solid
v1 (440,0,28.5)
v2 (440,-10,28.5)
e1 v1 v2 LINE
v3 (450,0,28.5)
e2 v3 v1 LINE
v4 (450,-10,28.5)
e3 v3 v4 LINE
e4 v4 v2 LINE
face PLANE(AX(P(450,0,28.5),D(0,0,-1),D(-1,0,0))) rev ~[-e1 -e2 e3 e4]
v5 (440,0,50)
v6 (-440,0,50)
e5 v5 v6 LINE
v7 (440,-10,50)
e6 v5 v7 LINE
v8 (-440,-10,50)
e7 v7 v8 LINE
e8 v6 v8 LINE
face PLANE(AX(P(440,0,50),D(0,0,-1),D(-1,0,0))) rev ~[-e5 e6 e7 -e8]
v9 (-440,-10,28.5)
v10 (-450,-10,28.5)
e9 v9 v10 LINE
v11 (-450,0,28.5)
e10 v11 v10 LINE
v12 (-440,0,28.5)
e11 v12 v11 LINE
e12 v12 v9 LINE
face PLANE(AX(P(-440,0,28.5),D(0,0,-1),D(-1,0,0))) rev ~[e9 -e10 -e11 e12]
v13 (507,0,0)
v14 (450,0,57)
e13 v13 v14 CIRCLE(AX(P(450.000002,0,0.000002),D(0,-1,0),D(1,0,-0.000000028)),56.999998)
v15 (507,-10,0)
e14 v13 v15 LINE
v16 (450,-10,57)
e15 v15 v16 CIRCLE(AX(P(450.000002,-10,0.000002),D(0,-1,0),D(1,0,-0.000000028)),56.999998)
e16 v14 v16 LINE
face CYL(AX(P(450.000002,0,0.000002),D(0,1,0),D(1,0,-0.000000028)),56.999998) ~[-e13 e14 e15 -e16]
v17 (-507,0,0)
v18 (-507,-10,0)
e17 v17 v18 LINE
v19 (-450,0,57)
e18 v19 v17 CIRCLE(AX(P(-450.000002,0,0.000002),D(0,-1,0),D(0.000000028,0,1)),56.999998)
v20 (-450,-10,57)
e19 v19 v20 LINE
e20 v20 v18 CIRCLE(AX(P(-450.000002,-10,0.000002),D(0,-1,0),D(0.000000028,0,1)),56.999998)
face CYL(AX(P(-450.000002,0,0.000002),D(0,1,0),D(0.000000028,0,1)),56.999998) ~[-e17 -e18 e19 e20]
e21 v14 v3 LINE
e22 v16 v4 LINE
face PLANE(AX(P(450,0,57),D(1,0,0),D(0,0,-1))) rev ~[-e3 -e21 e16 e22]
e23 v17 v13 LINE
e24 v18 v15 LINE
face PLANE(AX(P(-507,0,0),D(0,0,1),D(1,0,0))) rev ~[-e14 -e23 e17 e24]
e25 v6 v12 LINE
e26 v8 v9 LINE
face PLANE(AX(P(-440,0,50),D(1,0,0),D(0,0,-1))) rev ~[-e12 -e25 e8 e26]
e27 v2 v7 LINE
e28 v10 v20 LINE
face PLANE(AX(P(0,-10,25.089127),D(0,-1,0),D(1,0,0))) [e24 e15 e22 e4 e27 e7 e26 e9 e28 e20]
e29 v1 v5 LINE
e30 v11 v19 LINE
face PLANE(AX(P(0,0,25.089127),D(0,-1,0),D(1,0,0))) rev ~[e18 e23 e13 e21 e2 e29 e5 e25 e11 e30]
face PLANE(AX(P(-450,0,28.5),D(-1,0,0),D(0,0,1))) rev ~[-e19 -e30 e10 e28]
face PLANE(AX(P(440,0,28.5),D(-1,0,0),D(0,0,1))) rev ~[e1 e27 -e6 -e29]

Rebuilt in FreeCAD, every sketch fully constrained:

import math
import FreeCAD as App
import Part
import Sketcher

doc = App.newDocument("Part")
params = doc.addObject("Spreadsheet::Sheet", "Params")
for row, (alias, value) in enumerate([
    ("sketch1_radius", "56.999998 mm"),
    ("sketch1_width", "1014 mm"),
    ("sketch1_width2", "10 mm"),
    ("sketch1_height", "28.5 mm"),
    ("sketch1_height2", "21.5 mm"),
    ("pad1_length", "10 mm"),
], start=1):
    params.set(f"A{row}", alias)
    params.set(f"B{row}", "=" + value)
    params.setAlias(f"B{row}", alias)

body = doc.addObject("PartDesign::Body", "Body")

sketch1 = body.newObject("Sketcher::SketchObject", "Sketch")
sketch1.AttachmentSupport = (doc.getObject("XZ_Plane"), [""])
sketch1.MapMode = "FlatFace"
sketch1.addGeometry([
    Part.LineSegment(App.Vector(-507, 0, 0), App.Vector(507, 0, 0)),
    Part.ArcOfCircle(Part.Circle(App.Vector(450, 0, 0), App.Vector(0, 0, 1), 57), math.radians(0), math.radians(90)),
    Part.LineSegment(App.Vector(450, 57, 0), App.Vector(450, 28, 0)),
    Part.LineSegment(App.Vector(450, 28, 0), App.Vector(440, 28, 0)),
    Part.LineSegment(App.Vector(440, 28, 0), App.Vector(440, 50, 0)),
    Part.LineSegment(App.Vector(440, 50, 0), App.Vector(-440, 50, 0)),
    Part.LineSegment(App.Vector(-440, 50, 0), App.Vector(-440, 28, 0)),
    Part.LineSegment(App.Vector(-440, 28, 0), App.Vector(-450, 28, 0)),
    Part.LineSegment(App.Vector(-450, 28, 0), App.Vector(-450, 57, 0)),
    Part.ArcOfCircle(Part.Circle(App.Vector(-450, 0, 0), App.Vector(0, 0, 1), 57), math.radians(90), math.radians(180)),
], False)
sketch1.addConstraint([
    Sketcher.Constraint("Coincident", 0, 2, 1, 1),
    Sketcher.Constraint("Coincident", 1, 2, 2, 1),
    Sketcher.Constraint("Coincident", 2, 2, 3, 1),
    Sketcher.Constraint("Coincident", 3, 2, 4, 1),
    Sketcher.Constraint("Coincident", 4, 2, 5, 1),
    Sketcher.Constraint("Coincident", 5, 2, 6, 1),
    Sketcher.Constraint("Coincident", 6, 2, 7, 1),
    Sketcher.Constraint("Coincident", 7, 2, 8, 1),
    Sketcher.Constraint("Coincident", 8, 2, 9, 1),
    Sketcher.Constraint("Coincident", 9, 2, 0, 1),
    Sketcher.Constraint("Horizontal", 0),
    Sketcher.Constraint("Vertical", 2),
    Sketcher.Constraint("Horizontal", 3),
    Sketcher.Constraint("Vertical", 4),
    Sketcher.Constraint("Horizontal", 5),
    Sketcher.Constraint("Vertical", 6),
    Sketcher.Constraint("Horizontal", 7),
    Sketcher.Constraint("Vertical", 8),
    Sketcher.Constraint("Equal", 1, 9),
    Sketcher.Constraint("Symmetric", 1, 3, 9, 3, -1, 1),
    Sketcher.Constraint("Symmetric", 3, 2, 6, 2, -2),
    Sketcher.Constraint("Symmetric", 1, 2, 8, 2, -2),
    Sketcher.Constraint("PointOnObject", 0, 2, -1),
    Sketcher.Constraint("Vertical", 9, 3, 7, 2),
    Sketcher.Constraint("Radius", 1, 56.999998),
    Sketcher.Constraint("DistanceX", 0, 1, 0, 2, 1014.0),
    Sketcher.Constraint("DistanceX", 3, 2, 3, 1, 10.0),
    Sketcher.Constraint("DistanceY", 2, 2, 2, 1, 28.5),
    Sketcher.Constraint("DistanceY", 4, 1, 4, 2, 21.5),
])
sketch1.setExpression("Constraints[24]", "Params.sketch1_radius")
sketch1.setExpression("Constraints[25]", "Params.sketch1_width")
sketch1.setExpression("Constraints[26]", "Params.sketch1_width2")
sketch1.setExpression("Constraints[27]", "Params.sketch1_height")
sketch1.setExpression("Constraints[28]", "Params.sketch1_height2")
pad1 = body.newObject("PartDesign::Pad", "Pad")
pad1.Profile = sketch1
pad1.setExpression("Length", "Params.pad1_length")

doc.recompute()
